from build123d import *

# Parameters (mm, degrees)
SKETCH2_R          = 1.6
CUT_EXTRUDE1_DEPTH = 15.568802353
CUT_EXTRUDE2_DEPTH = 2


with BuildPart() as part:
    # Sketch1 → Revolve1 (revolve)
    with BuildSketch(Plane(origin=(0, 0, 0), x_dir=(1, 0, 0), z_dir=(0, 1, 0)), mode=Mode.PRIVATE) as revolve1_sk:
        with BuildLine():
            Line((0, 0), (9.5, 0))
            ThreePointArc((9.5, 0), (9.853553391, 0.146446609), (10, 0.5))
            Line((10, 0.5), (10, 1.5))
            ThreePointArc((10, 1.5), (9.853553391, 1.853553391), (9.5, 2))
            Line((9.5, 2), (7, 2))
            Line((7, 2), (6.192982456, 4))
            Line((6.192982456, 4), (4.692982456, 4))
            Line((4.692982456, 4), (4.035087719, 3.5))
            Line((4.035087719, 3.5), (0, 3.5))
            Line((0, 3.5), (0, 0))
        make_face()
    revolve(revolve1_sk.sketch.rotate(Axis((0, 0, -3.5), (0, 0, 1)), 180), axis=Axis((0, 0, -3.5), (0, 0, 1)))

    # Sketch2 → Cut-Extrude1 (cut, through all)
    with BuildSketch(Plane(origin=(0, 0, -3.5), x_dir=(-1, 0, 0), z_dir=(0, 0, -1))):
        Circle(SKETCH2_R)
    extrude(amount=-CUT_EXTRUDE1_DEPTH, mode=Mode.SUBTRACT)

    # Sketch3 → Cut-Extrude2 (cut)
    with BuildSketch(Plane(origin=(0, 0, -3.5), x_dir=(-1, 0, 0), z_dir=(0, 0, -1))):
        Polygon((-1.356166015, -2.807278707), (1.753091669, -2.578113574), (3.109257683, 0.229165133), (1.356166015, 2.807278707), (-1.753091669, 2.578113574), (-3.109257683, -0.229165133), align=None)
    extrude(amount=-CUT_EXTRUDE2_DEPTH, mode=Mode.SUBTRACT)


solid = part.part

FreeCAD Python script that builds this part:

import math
import FreeCAD as App
import Part
import Sketcher
from FreeCAD import Vector

doc = App.newDocument("Part")
body = doc.addObject("PartDesign::Body", "Body")

# Sketch on XZ plane
sketch1 = doc.addObject("Sketcher::SketchObject", "Sketch")
body.addObject(sketch1)
sketch1.AttachmentSupport = (doc.XZ_Plane, [""])
sketch1.MapMode = "FlatFace"
sketch1.addGeometry(Part.LineSegment(Vector(0, 0, 0), Vector(9.5, 0, 0)), False)
sketch1.addGeometry(Part.ArcOfCircle(Part.Circle(Vector(9.5, -0.5, 0), Vector(0, 0, 1), 0.5), math.radians(0), math.radians(90)), False)
sketch1.addGeometry(Part.LineSegment(Vector(10, -0.5, 0), Vector(10, -1.5, 0)), False)
sketch1.addGeometry(Part.ArcOfCircle(Part.Circle(Vector(9.5, -1.5, 0), Vector(0, 0, 1), 0.5), math.radians(-90), math.radians(0)), False)
sketch1.addGeometry(Part.LineSegment(Vector(9.5, -2, 0), Vector(7, -2, 0)), False)
sketch1.addGeometry(Part.LineSegment(Vector(7, -2, 0), Vector(6.19, -4, 0)), False)
sketch1.addGeometry(Part.LineSegment(Vector(6.19, -4, 0), Vector(4.69, -4, 0)), False)
sketch1.addGeometry(Part.LineSegment(Vector(4.69, -4, 0), Vector(4.04, -3.5, 0)), False)
sketch1.addGeometry(Part.LineSegment(Vector(4.04, -3.5, 0), Vector(0, -3.5, 0)), False)
sketch1.addGeometry(Part.LineSegment(Vector(0, -3.5, 0), Vector(0, 0, 0)), False)
sketch1.addConstraint(Sketcher.Constraint("Tangent", 0, 2, 1, 2))
sketch1.addConstraint(Sketcher.Constraint("Tangent", 1, 1, 2, 1))
sketch1.addConstraint(Sketcher.Constraint("Tangent", 2, 2, 3, 2))
sketch1.addConstraint(Sketcher.Constraint("Tangent", 3, 1, 4, 1))
sketch1.addConstraint(Sketcher.Constraint("Coincident", 4, 2, 5, 1))
sketch1.addConstraint(Sketcher.Constraint("Coincident", 5, 2, 6, 1))
sketch1.addConstraint(Sketcher.Constraint("Coincident", 6, 2, 7, 1))
sketch1.addConstraint(Sketcher.Constraint("Coincident", 7, 2, 8, 1))
sketch1.addConstraint(Sketcher.Constraint("Coincident", 8, 2, 9, 1))
sketch1.addConstraint(Sketcher.Constraint("Coincident", 9, 2, 0, 1))
sketch1.addConstraint(Sketcher.Constraint("Horizontal", 0))
sketch1.addConstraint(Sketcher.Constraint("Vertical", 2))
sketch1.addConstraint(Sketcher.Constraint("Horizontal", 4))
sketch1.addConstraint(Sketcher.Constraint("Horizontal", 6))
sketch1.addConstraint(Sketcher.Constraint("Horizontal", 8))
sketch1.addConstraint(Sketcher.Constraint("Vertical", 9))
sketch1.addConstraint(Sketcher.Constraint("Coincident", 9, 2, -1, 1))
sketch1.addConstraint(Sketcher.Constraint("Equal", 1, 3))
sketch1.addConstraint(Sketcher.Constraint("Radius", 1, 0.5))
sketch1.addConstraint(Sketcher.Constraint("DistanceY", 2, 2, 2, 1, 1.0))
sketch1.addConstraint(Sketcher.Constraint("DistanceX", 0, 1, 0, 2, 9.5))
sketch1.addConstraint(Sketcher.Constraint("DistanceX", 4, 2, 4, 1, 2.5))
sketch1.addConstraint(Sketcher.Constraint("DistanceX", 6, 2, 6, 1, 1.5))
sketch1.addConstraint(Sketcher.Constraint("DistanceY", 9, 1, 9, 2, 3.5))
sketch1.addConstraint(Sketcher.Constraint("DistanceY", 5, 2, -1, 1, 4.0))
sketch1.addConstraint(Sketcher.Constraint("DistanceX", 8, 2, 8, 1, 4.035088))
sketch1.addConstraint(Sketcher.Constraint("Distance", 5, 2.156682))
revolution = doc.addObject("PartDesign::Revolution", "Revolution")
body.addObject(revolution)
revolution.Profile = sketch1
revolution.ReferenceAxis = (sketch1, ["V_Axis"])
revolution.Angle = 360

# Sketch on XY plane
sketch2 = doc.addObject("Sketcher::SketchObject", "Sketch001")
body.addObject(sketch2)
sketch2.AttachmentSupport = (doc.XY_Plane, [""])
sketch2.MapMode = "FlatFace"
sketch2.AttachmentOffset = App.Placement(Vector(0, 0, -3.5), App.Rotation())
sketch2.addGeometry(Part.Circle(Vector(0, 0, 0), Vector(0, 0, 1), 1.6), False)
sketch2.addConstraint(Sketcher.Constraint("Coincident", 0, 3, -1, 1))
sketch2.addConstraint(Sketcher.Constraint("Diameter", 0, 3.2))
pocket1 = doc.addObject("PartDesign::Pocket", "Pocket")
body.addObject(pocket1)
pocket1.Profile = sketch2
pocket1.Type = "ThroughAll"
pocket1.Reversed = True

# Sketch on XY plane
sketch3 = doc.addObject("Sketcher::SketchObject", "Sketch002")
body.addObject(sketch3)
sketch3.AttachmentSupport = (doc.XY_Plane, [""])
sketch3.MapMode = "FlatFace"
sketch3.AttachmentOffset = App.Placement(Vector(0, 0, -3.5), App.Rotation())
sketch3.addGeometry(Part.LineSegment(Vector(1.4, -2.8, 0), Vector(-1.8, -2.6, 0)), False)
sketch3.addGeometry(Part.LineSegment(Vector(-1.8, -2.6, 0), Vector(-3.1, 0.2, 0)), False)
sketch3.addGeometry(Part.LineSegment(Vector(-3.1, 0.2, 0), Vector(-1.4, 2.8, 0)), False)
sketch3.addGeometry(Part.LineSegment(Vector(-1.4, 2.8, 0), Vector(1.8, 2.6, 0)), False)
sketch3.addGeometry(Part.LineSegment(Vector(1.8, 2.6, 0), Vector(3.1, -0.2, 0)), False)
sketch3.addGeometry(Part.LineSegment(Vector(3.1, -0.2, 0), Vector(1.4, -2.8, 0)), False)
sketch3.addConstraint(Sketcher.Constraint("Coincident", 0, 2, 1, 1))
sketch3.addConstraint(Sketcher.Constraint("Coincident", 1, 2, 2, 1))
sketch3.addConstraint(Sketcher.Constraint("Coincident", 2, 2, 3, 1))
sketch3.addConstraint(Sketcher.Constraint("Coincident", 3, 2, 4, 1))
sketch3.addConstraint(Sketcher.Constraint("Coincident", 4, 2, 5, 1))
sketch3.addConstraint(Sketcher.Constraint("Coincident", 5, 2, 0, 1))
sketch3.addConstraint(Sketcher.Constraint("Symmetric", 0, 2, 3, 2, -1, 1))
sketch3.addConstraint(Sketcher.Constraint("Symmetric", 1, 2, 4, 2, -1, 1))
sketch3.addConstraint(Sketcher.Constraint("Symmetric", 2, 2, 5, 2, -1, 1))
sketch3.addConstraint(Sketcher.Constraint("Equal", 0, 1))
sketch3.addConstraint(Sketcher.Constraint("Equal", 1, 2))
sketch3.addConstraint(Sketcher.Constraint("Distance", 0, 3.117691))
sketch3.addConstraint(Sketcher.Constraint("DistanceX", 0, 2, -1, 1, 1.753092))
sketch3.addConstraint(Sketcher.Constraint("DistanceY", -1, 1, 2, 2, 2.807279))
sketch3.addConstraint(Sketcher.Constraint("DistanceY", 0, 2, 1, 2, 2.807279))
pocket2 = doc.addObject("PartDesign::Pocket", "Pocket001")
body.addObject(pocket2)
pocket2.Profile = sketch3
pocket2.Length = 2
pocket2.Reversed = True

doc.recompute()
